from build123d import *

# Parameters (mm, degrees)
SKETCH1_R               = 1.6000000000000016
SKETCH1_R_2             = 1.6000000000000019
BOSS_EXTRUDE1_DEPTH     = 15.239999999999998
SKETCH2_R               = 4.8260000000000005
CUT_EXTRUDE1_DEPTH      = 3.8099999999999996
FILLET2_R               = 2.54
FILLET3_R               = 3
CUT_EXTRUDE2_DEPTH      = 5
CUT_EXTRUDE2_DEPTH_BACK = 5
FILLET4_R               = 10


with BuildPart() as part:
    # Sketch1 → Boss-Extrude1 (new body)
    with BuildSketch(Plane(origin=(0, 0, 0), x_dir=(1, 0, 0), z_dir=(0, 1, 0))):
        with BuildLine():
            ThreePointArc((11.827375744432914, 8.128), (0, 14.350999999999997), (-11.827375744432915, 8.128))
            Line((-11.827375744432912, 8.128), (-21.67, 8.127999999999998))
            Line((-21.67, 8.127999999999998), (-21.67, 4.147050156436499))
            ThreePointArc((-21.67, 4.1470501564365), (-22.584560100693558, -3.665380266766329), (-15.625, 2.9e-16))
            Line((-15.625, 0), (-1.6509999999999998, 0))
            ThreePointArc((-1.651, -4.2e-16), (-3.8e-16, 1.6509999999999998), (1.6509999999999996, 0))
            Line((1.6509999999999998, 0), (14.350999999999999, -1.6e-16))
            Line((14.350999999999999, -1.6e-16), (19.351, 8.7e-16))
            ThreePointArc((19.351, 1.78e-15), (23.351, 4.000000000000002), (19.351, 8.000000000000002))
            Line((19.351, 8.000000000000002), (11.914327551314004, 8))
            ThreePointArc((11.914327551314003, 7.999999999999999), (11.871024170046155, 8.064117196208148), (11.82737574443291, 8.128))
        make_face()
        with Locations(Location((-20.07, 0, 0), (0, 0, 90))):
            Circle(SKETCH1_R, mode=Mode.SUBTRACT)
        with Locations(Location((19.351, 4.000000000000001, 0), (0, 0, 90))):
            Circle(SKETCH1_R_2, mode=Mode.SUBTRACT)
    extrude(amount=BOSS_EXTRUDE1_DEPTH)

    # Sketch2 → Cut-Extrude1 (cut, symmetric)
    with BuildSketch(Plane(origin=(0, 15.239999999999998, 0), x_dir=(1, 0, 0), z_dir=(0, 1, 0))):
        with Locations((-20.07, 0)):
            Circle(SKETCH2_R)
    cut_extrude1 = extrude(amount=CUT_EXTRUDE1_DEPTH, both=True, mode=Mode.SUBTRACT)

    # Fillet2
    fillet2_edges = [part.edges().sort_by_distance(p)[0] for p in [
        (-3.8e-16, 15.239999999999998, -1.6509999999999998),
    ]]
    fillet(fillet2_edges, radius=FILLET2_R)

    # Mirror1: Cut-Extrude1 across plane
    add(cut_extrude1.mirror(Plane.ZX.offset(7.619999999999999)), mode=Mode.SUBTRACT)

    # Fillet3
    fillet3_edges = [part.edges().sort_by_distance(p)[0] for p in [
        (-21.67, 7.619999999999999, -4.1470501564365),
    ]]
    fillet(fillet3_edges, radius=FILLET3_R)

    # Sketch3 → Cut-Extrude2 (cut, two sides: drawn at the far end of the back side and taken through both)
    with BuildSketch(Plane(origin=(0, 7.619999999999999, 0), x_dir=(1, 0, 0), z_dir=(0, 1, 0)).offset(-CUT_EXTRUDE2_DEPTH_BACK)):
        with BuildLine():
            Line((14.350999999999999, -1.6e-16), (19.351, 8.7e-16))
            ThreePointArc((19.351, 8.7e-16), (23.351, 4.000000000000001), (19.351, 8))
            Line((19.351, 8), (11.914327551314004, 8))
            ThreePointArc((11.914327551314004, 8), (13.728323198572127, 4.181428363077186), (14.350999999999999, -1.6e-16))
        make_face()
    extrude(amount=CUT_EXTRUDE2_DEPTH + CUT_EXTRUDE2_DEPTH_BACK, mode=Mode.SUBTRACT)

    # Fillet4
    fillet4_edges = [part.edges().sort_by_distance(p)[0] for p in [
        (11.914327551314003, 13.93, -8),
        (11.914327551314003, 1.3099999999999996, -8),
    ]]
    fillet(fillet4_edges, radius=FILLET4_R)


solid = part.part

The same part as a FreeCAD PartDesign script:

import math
import FreeCAD as App
import Part
import Sketcher

V = App.Vector
Q = App.Units.Quantity


def edges_at(feature, points):
    """Names of the edges that pass closest to the given points."""
    edges = feature.Shape.Edges
    near = lambda p: min(range(len(edges)), key=lambda i: edges[i].distToShape(Part.Vertex(*p))[0])
    return sorted({f"Edge{near(p) + 1}" for p in points})

doc = App.newDocument("Part")
body = doc.addObject("PartDesign::Body", "Body")

# Sketch on XZ plane
sketch1 = body.newObject("Sketcher::SketchObject", "Sketch")
sketch1.AttachmentSupport = (doc.getObject("XZ_Plane"), [""])
sketch1.MapMode = "FlatFace"
sketch1.addGeometry([
    Part.LineSegment(V(-11.8, -8.1, 0), V(-21.7, -8.1, 0)),  # 0
    Part.LineSegment(V(-21.7, -8.1, 0), V(-21.7, -4.1, 0)),  # 1
    Part.ArcOfCircle(Part.Circle(V(-20.1, 0, 0), V(0, 0, 1), 4.4), math.radians(0), math.radians(249)),  # 2
    Part.LineSegment(V(-15.6, 0, 0), V(-1.7, 0, 0)),  # 3
    Part.ArcOfCircle(Part.Circle(V(0, 0, 0), V(0, 0, 1), 1.7), math.radians(180), math.radians(360)),  # 4
    Part.LineSegment(V(1.7, 0, 0), V(19.4, 0, 0)),  # 5
    Part.ArcOfCircle(Part.Circle(V(19.4, -4, 0), V(0, 0, 1), 4), math.radians(-90), math.radians(90)),  # 6
    Part.LineSegment(V(19.4, -8, 0), V(11.9, -8, 0)),  # 7
    Part.ArcOfCircle(Part.Circle(V(0, 0, 0), V(0, 0, 1), 14.4), math.radians(-146), math.radians(-34)),  # 8
    Part.Circle(V(-20.1, 0, 0), V(0, 0, 1), 1.6),  # 9
    Part.Circle(V(19.4, -4, 0), V(0, 0, 1), 1.6),  # 10
], False)
sketch1.addConstraint([
    Sketcher.Constraint("Coincident", 0, 2, 1, 1),
    Sketcher.Constraint("Coincident", 1, 2, 2, 2),
    Sketcher.Constraint("Coincident", 2, 1, 3, 1),
    Sketcher.Constraint("Coincident", 3, 2, 4, 1),
    Sketcher.Constraint("Coincident", 4, 2, 5, 1),
    Sketcher.Constraint("Tangent", 5, 2, 6, 2),
    Sketcher.Constraint("Tangent", 6, 1, 7, 1),
    Sketcher.Constraint("Coincident", 7, 2, 8, 2),
    Sketcher.Constraint("Coincident", 8, 1, 0, 1),
    Sketcher.Constraint("Horizontal", 0),
    Sketcher.Constraint("Vertical", 1),
    Sketcher.Constraint("Horizontal", 3),
    Sketcher.Constraint("Horizontal", 5),
    Sketcher.Constraint("Horizontal", 7),
    Sketcher.Constraint("Coincident", 4, 3, -1, 1),
    Sketcher.Constraint("Coincident", 8, 3, -1, 1),
    Sketcher.Constraint("Coincident", 9, 3, 2, 3),
    Sketcher.Constraint("Coincident", 10, 3, 6, 3),
    Sketcher.Constraint("Equal", 9, 10),
    Sketcher.Constraint("PointOnObject", 2, 3, -1),
    Sketcher.Constraint("PointOnObject", 2, 1, -1),
    Sketcher.Constraint("PointOnObject", 4, 2, -1),
    Sketcher.Constraint("Radius", 2, Q("0.175 in")),
    Sketcher.Constraint("Radius", 4, Q("0.065 in")),
    Sketcher.Constraint("Radius", 8, Q("0.565 in")),
    Sketcher.Constraint("Diameter", 9, 3.2),
    Sketcher.Constraint("DistanceY", 0, 2, -1, 1, Q("0.32 in")),
    Sketcher.Constraint("Radius", 6, 4.0),
    Sketcher.Constraint("DistanceX", 0, 2, 6, 3, Q("1.615 in")),
    Sketcher.Constraint("DistanceX", 3, 1, 3, 2, 13.974),
    Sketcher.Constraint("DistanceX", 5, 1, 5, 2, 17.7),
])
pad1 = body.newObject("PartDesign::Pad", "Pad")
pad1.Profile = sketch1
pad1.Length = Q("0.6 in")
pad1.Reversed = True

# Sketch on XZ plane
sketch2 = body.newObject("Sketcher::SketchObject", "Sketch001")
sketch2.AttachmentSupport = (doc.getObject("XZ_Plane"), [""])
sketch2.MapMode = "FlatFace"
sketch2.AttachmentOffset = App.Placement(V(0, 0, -0.6 * 25.4), App.Rotation())
sketch2.addGeometry(Part.Circle(V(-20.1, 0, 0), V(0, 0, 1), 4.8), False)
sketch2.addConstraint([
    Sketcher.Constraint("PointOnObject", 0, 3, -1),
    Sketcher.Constraint("Diameter", 0, Q("0.38 in")),
    Sketcher.Constraint("DistanceX", 0, 3, -1, 1, 20.07),
])
pocket1 = body.newObject("PartDesign::Pocket", "Pocket")
pocket1.Profile = sketch2
pocket1.Length = Q("0.3 in")
pocket1.Midplane = True
doc.recompute()

fillet = body.newObject("PartDesign::Fillet", "Fillet")
fillet.Base = (pocket1, edges_at(pocket1, [(0, 15.24, -1.651)]))
fillet.Radius = Q("0.1 in")
doc.recompute()

datumplane = body.newObject("PartDesign::Plane", "DatumPlane")
datumplane.AttachmentSupport = (doc.getObject("XZ_Plane"), [""])
datumplane.MapMode = "FlatFace"
datumplane.AttachmentOffset = App.Placement(V(0, 0, -0.3 * 25.4), App.Rotation())
mirrored = body.newObject("PartDesign::Mirrored", "Mirrored")
mirrored.Originals = [pocket1]
mirrored.MirrorPlane = (datumplane, [""])
body.Tip = mirrored
doc.recompute()

fillet2 = body.newObject("PartDesign::Fillet", "Fillet001")
fillet2.Base = (mirrored, edges_at(mirrored, [(-21.67, 7.62, -4.147)]))
fillet2.Radius = 3

# Sketch on XZ plane
sketch3 = body.newObject("Sketcher::SketchObject", "Sketch002")
sketch3.AttachmentSupport = (doc.getObject("XZ_Plane"), [""])
sketch3.MapMode = "FlatFace"
sketch3.AttachmentOffset = App.Placement(V(0, 0, -0.3 * 25.4), App.Rotation())
sketch3.addGeometry([
    Part.LineSegment(V(14.4, 0, 0), V(19.4, 0, 0)),
    Part.ArcOfCircle(Part.Circle(V(19.4, -4, 0), V(0, 0, 1), 4), math.radians(-90), math.radians(90)),
    Part.LineSegment(V(19.4, -8, 0), V(11.9, -8, 0)),
    Part.ArcOfCircle(Part.Circle(V(0, 0, 0), V(0, 0, 1), 14.4), math.radians(-34), math.radians(0)),
], False)
sketch3.addConstraint([
    Sketcher.Constraint("Tangent", 0, 2, 1, 2),
    Sketcher.Constraint("Tangent", 1, 1, 2, 1),
    Sketcher.Constraint("Coincident", 2, 2, 3, 1),
    Sketcher.Constraint("Coincident", 3, 2, 0, 1),
    Sketcher.Constraint("Horizontal", 0),
    Sketcher.Constraint("Horizontal", 2),
    Sketcher.Constraint("Coincident", 3, 3, -1, 1),
    Sketcher.Constraint("PointOnObject", 0, 2, -1),
    Sketcher.Constraint("Radius", 3, Q("0.565 in")),
    Sketcher.Constraint("Radius", 1, 4.0),
    Sketcher.Constraint("DistanceX", 0, 1, 0, 2, 5.0),
])
pocket2 = body.newObject("PartDesign::Pocket", "Pocket001")
pocket2.Profile = sketch3
pocket2.Type = "TwoLengths"
pocket2.Length = 5
pocket2.Length2 = 5
doc.recompute()

fillet3 = body.newObject("PartDesign::Fillet", "Fillet002")
fillet3.Base = (pocket2, edges_at(pocket2, [(11.914, 13.93, -8), (11.914, 1.31, -8)]))
fillet3.Radius = 10

doc.recompute()
